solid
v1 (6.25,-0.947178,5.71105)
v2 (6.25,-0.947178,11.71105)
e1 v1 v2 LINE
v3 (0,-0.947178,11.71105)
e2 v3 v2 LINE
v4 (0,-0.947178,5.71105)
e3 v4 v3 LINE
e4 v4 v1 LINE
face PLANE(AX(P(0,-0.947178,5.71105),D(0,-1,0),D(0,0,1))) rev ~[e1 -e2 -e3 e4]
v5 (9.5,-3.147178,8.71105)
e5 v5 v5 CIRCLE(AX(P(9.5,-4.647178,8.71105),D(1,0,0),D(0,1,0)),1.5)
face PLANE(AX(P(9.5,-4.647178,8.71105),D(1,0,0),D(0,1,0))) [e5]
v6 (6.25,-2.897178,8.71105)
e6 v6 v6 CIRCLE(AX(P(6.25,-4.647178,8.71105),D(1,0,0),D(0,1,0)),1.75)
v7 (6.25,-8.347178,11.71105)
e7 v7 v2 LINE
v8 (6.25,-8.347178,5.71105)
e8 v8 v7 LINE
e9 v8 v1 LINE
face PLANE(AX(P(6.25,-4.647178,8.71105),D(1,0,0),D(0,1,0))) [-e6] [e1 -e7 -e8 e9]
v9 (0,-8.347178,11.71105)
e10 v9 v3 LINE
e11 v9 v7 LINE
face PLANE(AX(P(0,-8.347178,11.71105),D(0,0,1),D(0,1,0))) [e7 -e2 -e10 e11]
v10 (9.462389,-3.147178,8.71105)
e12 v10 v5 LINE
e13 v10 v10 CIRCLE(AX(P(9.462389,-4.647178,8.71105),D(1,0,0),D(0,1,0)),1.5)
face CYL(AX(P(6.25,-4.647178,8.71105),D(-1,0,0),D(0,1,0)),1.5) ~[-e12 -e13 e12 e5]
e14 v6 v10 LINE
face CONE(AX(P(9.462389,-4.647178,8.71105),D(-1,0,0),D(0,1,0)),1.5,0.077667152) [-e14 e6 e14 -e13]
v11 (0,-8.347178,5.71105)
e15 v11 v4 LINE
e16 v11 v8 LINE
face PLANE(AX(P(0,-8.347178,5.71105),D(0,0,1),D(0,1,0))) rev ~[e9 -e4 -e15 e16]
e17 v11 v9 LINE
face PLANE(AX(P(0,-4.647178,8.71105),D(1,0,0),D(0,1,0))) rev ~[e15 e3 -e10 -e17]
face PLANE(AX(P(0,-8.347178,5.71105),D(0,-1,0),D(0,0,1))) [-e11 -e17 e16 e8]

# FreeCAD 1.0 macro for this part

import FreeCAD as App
import Part
import Sketcher
from FreeCAD import Vector


def edges_at(feature, points):
    """Names of the edges that pass closest to the given points."""
    edges = feature.Shape.Edges
    near = lambda p: min(range(len(edges)), key=lambda i: edges[i].distToShape(Part.Vertex(*p))[0])
    return sorted({f"Edge{near(p) + 1}" for p in points})

doc = App.newDocument("Part")
body = doc.addObject("PartDesign::Body", "Body")

sketch1 = body.newObject("Sketcher::SketchObject", "Sketch")
sketch1.AttachmentSupport = (doc.getObject("YZ_Plane"), [""])
sketch1.MapMode = "FlatFace"
sketch1.addGeometry([
    Part.LineSegment(Vector(-8, 12, 0), Vector(-8, 6, 0)),
    Part.LineSegment(Vector(-8, 6, 0), Vector(-1, 6, 0)),
    Part.LineSegment(Vector(-1, 6, 0), Vector(-1, 12, 0)),
    Part.LineSegment(Vector(-1, 12, 0), Vector(-8, 12, 0)),
], False)
sketch1.addConstraint([
    Sketcher.Constraint("Coincident", 0, 2, 1, 1),
    Sketcher.Constraint("Coincident", 1, 2, 2, 1),
    Sketcher.Constraint("Coincident", 2, 2, 3, 1),
    Sketcher.Constraint("Coincident", 3, 2, 0, 1),
    Sketcher.Constraint("Vertical", 0),
    Sketcher.Constraint("Horizontal", 1),
    Sketcher.Constraint("Vertical", 2),
    Sketcher.Constraint("Horizontal", 3),
    Sketcher.Constraint("DistanceY", 0, 2, 0, 1, 6.0),
    Sketcher.Constraint("DistanceX", 1, 1, 1, 2, 7.4),
    Sketcher.Constraint("DistanceY", -1, 1, 0, 2, 5.71105),
    Sketcher.Constraint("DistanceX", 0, 2, -1, 1, 8.347178),
])
pad1 = body.newObject("PartDesign::Pad", "Pad")
pad1.Profile = sketch1
pad1.Length = 6.25

sketch2 = body.newObject("Sketcher::SketchObject", "Sketch001")
sketch2.AttachmentSupport = (doc.getObject("YZ_Plane"), [""])
sketch2.MapMode = "FlatFace"
sketch2.AttachmentOffset = App.Placement(Vector(0, 0, 6.25), App.Rotation())
sketch2.addGeometry(Part.Circle(Vector(-4.6, 8.7, 0), Vector(0, 0, 1), 1.5), False)
sketch2.addConstraint([
    Sketcher.Constraint("Diameter", 0, 3.0),
    Sketcher.Constraint("DistanceX", 0, 3, -1, 1, 4.647178),
    Sketcher.Constraint("DistanceY", -1, 1, 0, 3, 8.71105),
])
pad2 = body.newObject("PartDesign::Pad", "Pad001")
pad2.Profile = sketch2
pad2.Length = 3.25
doc.recompute()

chamfer = body.newObject("PartDesign::Chamfer", "Chamfer")
chamfer.Base = (pad2, edges_at(pad2, [(6.25, -6.147, 8.711)]))
chamfer.ChamferType = "Distance and Angle"
chamfer.Size = 0.25
chamfer.Angle = 85.55

doc.recompute()
